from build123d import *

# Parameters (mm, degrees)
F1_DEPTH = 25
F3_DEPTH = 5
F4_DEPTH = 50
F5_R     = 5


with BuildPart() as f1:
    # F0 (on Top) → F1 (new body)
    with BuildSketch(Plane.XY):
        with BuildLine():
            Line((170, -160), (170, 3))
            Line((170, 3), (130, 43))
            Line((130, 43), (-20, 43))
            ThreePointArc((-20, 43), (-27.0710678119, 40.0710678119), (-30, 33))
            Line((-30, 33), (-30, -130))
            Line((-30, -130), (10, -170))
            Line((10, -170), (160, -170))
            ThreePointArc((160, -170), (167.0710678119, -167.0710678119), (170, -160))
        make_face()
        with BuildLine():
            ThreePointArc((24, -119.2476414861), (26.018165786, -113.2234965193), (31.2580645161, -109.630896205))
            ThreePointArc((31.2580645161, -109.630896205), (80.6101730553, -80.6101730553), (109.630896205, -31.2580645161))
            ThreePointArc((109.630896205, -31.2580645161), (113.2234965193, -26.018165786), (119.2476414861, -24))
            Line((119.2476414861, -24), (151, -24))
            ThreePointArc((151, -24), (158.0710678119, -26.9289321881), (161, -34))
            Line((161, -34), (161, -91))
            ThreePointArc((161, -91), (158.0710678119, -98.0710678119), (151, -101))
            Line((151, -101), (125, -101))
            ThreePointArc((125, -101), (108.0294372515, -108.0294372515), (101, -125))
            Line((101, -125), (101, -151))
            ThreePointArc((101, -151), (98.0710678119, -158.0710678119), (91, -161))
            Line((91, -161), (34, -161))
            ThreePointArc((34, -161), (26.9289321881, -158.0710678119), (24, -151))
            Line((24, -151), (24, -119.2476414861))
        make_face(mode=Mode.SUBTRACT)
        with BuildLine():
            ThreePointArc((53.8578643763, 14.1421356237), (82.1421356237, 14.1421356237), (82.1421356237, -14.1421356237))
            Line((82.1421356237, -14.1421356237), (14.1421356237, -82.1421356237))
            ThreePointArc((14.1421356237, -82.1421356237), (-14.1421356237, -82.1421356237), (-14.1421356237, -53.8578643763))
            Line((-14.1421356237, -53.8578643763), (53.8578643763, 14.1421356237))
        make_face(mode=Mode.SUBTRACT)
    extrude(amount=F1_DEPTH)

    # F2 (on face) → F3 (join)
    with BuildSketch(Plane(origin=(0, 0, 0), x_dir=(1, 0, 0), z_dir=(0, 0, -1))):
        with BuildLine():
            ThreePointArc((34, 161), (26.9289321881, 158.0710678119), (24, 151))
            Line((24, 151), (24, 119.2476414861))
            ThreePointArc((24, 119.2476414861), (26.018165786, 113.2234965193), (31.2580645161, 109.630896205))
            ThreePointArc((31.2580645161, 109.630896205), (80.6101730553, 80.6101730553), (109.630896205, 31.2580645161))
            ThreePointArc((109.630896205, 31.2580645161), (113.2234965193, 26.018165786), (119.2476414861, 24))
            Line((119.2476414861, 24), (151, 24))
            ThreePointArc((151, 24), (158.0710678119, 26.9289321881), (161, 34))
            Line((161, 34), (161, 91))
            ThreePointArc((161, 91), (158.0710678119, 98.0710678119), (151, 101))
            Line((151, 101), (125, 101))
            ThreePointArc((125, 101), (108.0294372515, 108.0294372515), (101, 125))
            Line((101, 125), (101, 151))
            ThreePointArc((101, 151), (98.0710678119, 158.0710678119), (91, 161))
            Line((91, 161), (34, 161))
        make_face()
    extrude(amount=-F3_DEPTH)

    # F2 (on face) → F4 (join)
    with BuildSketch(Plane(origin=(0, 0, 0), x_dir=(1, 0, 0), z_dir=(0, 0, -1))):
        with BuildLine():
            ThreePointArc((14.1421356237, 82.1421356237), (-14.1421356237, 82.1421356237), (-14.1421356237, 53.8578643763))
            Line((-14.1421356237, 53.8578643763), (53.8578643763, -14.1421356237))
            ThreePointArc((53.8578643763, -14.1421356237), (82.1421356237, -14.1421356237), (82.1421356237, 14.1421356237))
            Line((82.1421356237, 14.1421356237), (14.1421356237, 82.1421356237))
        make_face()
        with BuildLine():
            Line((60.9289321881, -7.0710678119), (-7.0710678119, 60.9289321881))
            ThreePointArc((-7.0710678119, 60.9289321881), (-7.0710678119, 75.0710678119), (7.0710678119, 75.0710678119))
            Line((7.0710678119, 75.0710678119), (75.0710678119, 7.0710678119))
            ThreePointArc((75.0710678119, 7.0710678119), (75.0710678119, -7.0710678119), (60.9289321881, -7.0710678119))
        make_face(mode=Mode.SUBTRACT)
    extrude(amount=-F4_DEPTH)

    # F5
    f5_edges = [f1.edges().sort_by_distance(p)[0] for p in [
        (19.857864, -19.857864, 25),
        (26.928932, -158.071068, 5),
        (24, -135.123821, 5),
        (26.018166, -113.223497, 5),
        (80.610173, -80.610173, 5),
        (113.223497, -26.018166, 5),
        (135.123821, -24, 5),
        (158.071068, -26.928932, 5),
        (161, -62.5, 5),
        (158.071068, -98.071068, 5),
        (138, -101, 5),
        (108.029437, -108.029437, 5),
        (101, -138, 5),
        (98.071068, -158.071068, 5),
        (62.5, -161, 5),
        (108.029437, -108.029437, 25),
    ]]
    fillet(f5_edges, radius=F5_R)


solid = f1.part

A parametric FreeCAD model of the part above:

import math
import FreeCAD as App
import Part
import Sketcher
from FreeCAD import Vector
Q = App.Units.Quantity


def edges_at(feature, points):
    """Names of the edges that pass closest to the given points."""
    edges = feature.Shape.Edges
    near = lambda p: min(range(len(edges)), key=lambda i: edges[i].distToShape(Part.Vertex(*p))[0])
    return sorted({f"Edge{near(p) + 1}" for p in points})

doc = App.newDocument("Part")
params = doc.addObject("Spreadsheet::Sheet", "Params")
for row, (alias, value) in enumerate([
    ("sketch1_radius", "10 mm"),
    ("sketch1_radius2", "114 mm"),
    ("sketch1_radius3", "24 mm"),
    ("sketch1_radius4", "20 mm"),
    ("sketch1_width", "150 mm"),
    ("pad1_length", "25 mm"),
    ("sketch2_radius", "10 mm"),
    ("sketch2_radius2", "114 mm"),
    ("sketch2_radius3", "24 mm"),
    ("sketch2_width", "26 mm"),
    ("sketch2_width2", "57 mm"),
    ("pad2_length", "5 mm"),
    ("sketch3_radius", "20 mm"),
    ("sketch3_radius2", "10 mm"),
    ("pad3_length", "50 mm"),
    ("fillet_radius", "5 mm"),
], start=1):
    params.set(f"A{row}", alias)
    params.set(f"B{row}", "=" + value)
    params.setAlias(f"B{row}", alias)

body = doc.addObject("PartDesign::Body", "Body")

sketch1 = doc.addObject("Sketcher::SketchObject", "Sketch")
body.addObject(sketch1)
sketch1.AttachmentSupport = (doc.XY_Plane, [""])
sketch1.MapMode = "FlatFace"
sketch1.addGeometry(Part.LineSegment(Vector(170, -160, 0), Vector(170, 3, 0)), False)
sketch1.addGeometry(Part.LineSegment(Vector(170, 3, 0), Vector(130, 43, 0)), False)
sketch1.addGeometry(Part.LineSegment(Vector(130, 43, 0), Vector(-20, 43, 0)), False)
sketch1.addGeometry(Part.ArcOfCircle(Part.Circle(Vector(-20, 33, 0), Vector(0, 0, 1), 10), math.radians(90), math.radians(180)), False)
sketch1.addGeometry(Part.LineSegment(Vector(-30, 33, 0), Vector(-30, -130, 0)), False)
sketch1.addGeometry(Part.LineSegment(Vector(-30, -130, 0), Vector(10, -170, 0)), False)
sketch1.addGeometry(Part.LineSegment(Vector(10, -170, 0), Vector(160, -170, 0)), False)
sketch1.addGeometry(Part.ArcOfCircle(Part.Circle(Vector(160, -160, 0), Vector(0, 0, 1), 10), math.radians(-90), math.radians(0)), False)
sketch1.addGeometry(Part.LineSegment(Vector(24, -151, 0), Vector(24, -119, 0)), False)
sketch1.addGeometry(Part.ArcOfCircle(Part.Circle(Vector(34, -119, 0), Vector(0, 0, 1), 10), math.radians(106), math.radians(180)), False)
sketch1.addGeometry(Part.ArcOfCircle(Part.Circle(Vector(0, 0, 0), Vector(0, 0, 1), 114), math.radians(-74), math.radians(-16)), False)
sketch1.addGeometry(Part.ArcOfCircle(Part.Circle(Vector(119, -34, 0), Vector(0, 0, 1), 10), math.radians(90), math.radians(164)), False)
sketch1.addGeometry(Part.LineSegment(Vector(119, -24, 0), Vector(151, -24, 0)), False)
sketch1.addGeometry(Part.ArcOfCircle(Part.Circle(Vector(151, -34, 0), Vector(0, 0, 1), 10), math.radians(0), math.radians(90)), False)
sketch1.addGeometry(Part.LineSegment(Vector(161, -34, 0), Vector(161, -91, 0)), False)
sketch1.addGeometry(Part.ArcOfCircle(Part.Circle(Vector(151, -91, 0), Vector(0, 0, 1), 10), math.radians(-90), math.radians(0)), False)
sketch1.addGeometry(Part.LineSegment(Vector(151, -101, 0), Vector(125, -101, 0)), False)
sketch1.addGeometry(Part.ArcOfCircle(Part.Circle(Vector(125, -125, 0), Vector(0, 0, 1), 24), math.radians(90), math.radians(180)), False)
sketch1.addGeometry(Part.LineSegment(Vector(101, -125, 0), Vector(101, -151, 0)), False)
sketch1.addGeometry(Part.ArcOfCircle(Part.Circle(Vector(91, -151, 0), Vector(0, 0, 1), 10), math.radians(-90), math.radians(0)), False)
sketch1.addGeometry(Part.LineSegment(Vector(91, -161, 0), Vector(34, -161, 0)), False)
sketch1.addGeometry(Part.ArcOfCircle(Part.Circle(Vector(34, -151, 0), Vector(0, 0, 1), 10), math.radians(180), math.radians(270)), False)
sketch1.addGeometry(Part.LineSegment(Vector(-14, -54, 0), Vector(54, 14, 0)), False)
sketch1.addGeometry(Part.ArcOfCircle(Part.Circle(Vector(68, 0, 0), Vector(0, 0, 1), 20), math.radians(-45), math.radians(135)), False)
sketch1.addGeometry(Part.LineSegment(Vector(82, -14, 0), Vector(14, -82, 0)), False)
sketch1.addGeometry(Part.ArcOfCircle(Part.Circle(Vector(0, -68, 0), Vector(0, 0, 1), 20), math.radians(135), math.radians(315)), False)
sketch1.addConstraint(Sketcher.Constraint("Coincident", 0, 2, 1, 1))
sketch1.addConstraint(Sketcher.Constraint("Coincident", 1, 2, 2, 1))
sketch1.addConstraint(Sketcher.Constraint("Tangent", 2, 2, 3, 1))
sketch1.addConstraint(Sketcher.Constraint("Tangent", 3, 2, 4, 1))
sketch1.addConstraint(Sketcher.Constraint("Coincident", 4, 2, 5, 1))
sketch1.addConstraint(Sketcher.Constraint("Coincident", 5, 2, 6, 1))
sketch1.addConstraint(Sketcher.Constraint("Tangent", 6, 2, 7, 1))
sketch1.addConstraint(Sketcher.Constraint("Tangent", 7, 2, 0, 1))
sketch1.addConstraint(Sketcher.Constraint("Tangent", 8, 2, 9, 2))
sketch1.addConstraint(Sketcher.Constraint("Tangent", 9, 1, 10, 1))
sketch1.addConstraint(Sketcher.Constraint("Tangent", 10, 2, 11, 2))
sketch1.addConstraint(Sketcher.Constraint("Tangent", 11, 1, 12, 1))
sketch1.addConstraint(Sketcher.Constraint("Tangent", 12, 2, 13, 2))
sketch1.addConstraint(Sketcher.Constraint("Tangent", 13, 1, 14, 1))
sketch1.addConstraint(Sketcher.Constraint("Tangent", 14, 2, 15, 2))
sketch1.addConstraint(Sketcher.Constraint("Tangent", 15, 1, 16, 1))
sketch1.addConstraint(Sketcher.Constraint("Tangent", 16, 2, 17, 1))
sketch1.addConstraint(Sketcher.Constraint("Tangent", 17, 2, 18, 1))
sketch1.addConstraint(Sketcher.Constraint("Tangent", 18, 2, 19, 2))
sketch1.addConstraint(Sketcher.Constraint("Tangent", 19, 1, 20, 1))
sketch1.addConstraint(Sketcher.Constraint("Tangent", 20, 2, 21, 2))
sketch1.addConstraint(Sketcher.Constraint("Tangent", 21, 1, 8, 1))
sketch1.addConstraint(Sketcher.Constraint("Tangent", 22, 2, 23, 2))
sketch1.addConstraint(Sketcher.Constraint("Tangent", 23, 1, 24, 1))
sketch1.addConstraint(Sketcher.Constraint("Tangent", 24, 2, 25, 2))
sketch1.addConstraint(Sketcher.Constraint("Tangent", 25, 1, 22, 1))
sketch1.addConstraint(Sketcher.Constraint("Vertical", 0))
sketch1.addConstraint(Sketcher.Constraint("Horizontal", 2))
sketch1.addConstraint(Sketcher.Constraint("Vertical", 4))
sketch1.addConstraint(Sketcher.Constraint("Horizontal", 6))
sketch1.addConstraint(Sketcher.Constraint("Vertical", 8))
sketch1.addConstraint(Sketcher.Constraint("Horizontal", 12))
sketch1.addConstraint(Sketcher.Constraint("Vertical", 14))
sketch1.addConstraint(Sketcher.Constraint("Horizontal", 16))
sketch1.addConstraint(Sketcher.Constraint("Vertical", 18))
sketch1.addConstraint(Sketcher.Constraint("Horizontal", 20))
sketch1.addConstraint(Sketcher.Constraint("Coincident", 10, 3, -1, 1))
sketch1.addConstraint(Sketcher.Constraint("Equal", 3, 7))
sketch1.addConstraint(Sketcher.Constraint("Equal", 7, 9))
sketch1.addConstraint(Sketcher.Constraint("Equal", 9, 11))
sketch1.addConstraint(Sketcher.Constraint("Equal", 11, 13))
sketch1.addConstraint(Sketcher.Constraint("Equal", 13, 15))
sketch1.addConstraint(Sketcher.Constraint("Equal", 15, 19))
sketch1.addConstraint(Sketcher.Constraint("Equal", 19, 21))
sketch1.addConstraint(Sketcher.Constraint("Equal", 23, 25))
sketch1.addConstraint(Sketcher.Constraint("PointOnObject", 23, 3, -1))
sketch1.addConstraint(Sketcher.Constraint("PointOnObject", 25, 3, -2))
sketch1.addConstraint(Sketcher.Constraint("Parallel", 1, 5))
sketch1.addConstraint(Sketcher.Constraint("Perpendicular", 5, 22))
sketch1.addConstraint(Sketcher.Constraint("Equal", 2, 6))
sketch1.addConstraint(Sketcher.Constraint("Equal", 12, 8))
sketch1.addConstraint(Sketcher.Constraint("Equal", 20, 14))
sketch1.addConstraint(Sketcher.Constraint("Equal", 16, 18))
sketch1.addConstraint(Sketcher.Constraint("Radius", 3, 10.0))
sketch1.addConstraint(Sketcher.Constraint("Radius", 10, 114.0))
sketch1.addConstraint(Sketcher.Constraint("Radius", 17, 24.0))
sketch1.addConstraint(Sketcher.Constraint("Radius", 23, 20.0))
sketch1.addConstraint(Sketcher.Constraint("DistanceX", 2, 2, 2, 1, 150.0))
sketch1.addConstraint(Sketcher.Constraint("DistanceX", 16, 2, 16, 1, 26.0))
sketch1.addConstraint(Sketcher.Constraint("DistanceX", 20, 2, 20, 1, 57.0))
sketch1.addConstraint(Sketcher.Constraint("DistanceY", 0, 1, 0, 2, 163.0))
sketch1.addConstraint(Sketcher.Constraint("Angle", 1, Q("135 deg")))
sketch1.addConstraint(Sketcher.Constraint("DistanceX", 3, 3, -1, 1, 20.0))
sketch1.addConstraint(Sketcher.Constraint("DistanceY", -1, 1, 3, 3, 33.0))
sketch1.addConstraint(Sketcher.Constraint("DistanceX", -1, 1, 7, 3, 160.0))
sketch1.addConstraint(Sketcher.Constraint("DistanceX", -1, 1, 9, 3, 34.0))
sketch1.addConstraint(Sketcher.Constraint("DistanceX", -1, 1, 23, 3, 68.0))
sketch1.setExpression("Constraints[53]", "Params.sketch1_radius")
sketch1.setExpression("Constraints[54]", "Params.sketch1_radius2")
sketch1.setExpression("Constraints[55]", "Params.sketch1_radius3")
sketch1.setExpression("Constraints[56]", "Params.sketch1_radius4")
sketch1.setExpression("Constraints[57]", "Params.sketch1_width")
pad1 = doc.addObject("PartDesign::Pad", "Pad")
body.addObject(pad1)
pad1.Profile = sketch1
pad1.setExpression("Length", "Params.pad1_length")

sketch2 = doc.addObject("Sketcher::SketchObject", "Sketch001")
body.addObject(sketch2)
sketch2.AttachmentSupport = (doc.XY_Plane, [""])
sketch2.MapMode = "FlatFace"
sketch2.addGeometry(Part.ArcOfCircle(Part.Circle(Vector(34, -151, 0), Vector(0, 0, 1), 10), math.radians(180), math.radians(270)), False)
sketch2.addGeometry(Part.LineSegment(Vector(24, -151, 0), Vector(24, -119, 0)), False)
sketch2.addGeometry(Part.ArcOfCircle(Part.Circle(Vector(34, -119, 0), Vector(0, 0, 1), 10), math.radians(106), math.radians(180)), False)
sketch2.addGeometry(Part.ArcOfCircle(Part.Circle(Vector(0, 0, 0), Vector(0, 0, 1), 114), math.radians(-74), math.radians(-16)), False)
sketch2.addGeometry(Part.ArcOfCircle(Part.Circle(Vector(119, -34, 0), Vector(0, 0, 1), 10), math.radians(90), math.radians(164)), False)
sketch2.addGeometry(Part.LineSegment(Vector(119, -24, 0), Vector(151, -24, 0)), False)
sketch2.addGeometry(Part.ArcOfCircle(Part.Circle(Vector(151, -34, 0), Vector(0, 0, 1), 10), math.radians(0), math.radians(90)), False)
sketch2.addGeometry(Part.LineSegment(Vector(161, -34, 0), Vector(161, -91, 0)), False)
sketch2.addGeometry(Part.ArcOfCircle(Part.Circle(Vector(151, -91, 0), Vector(0, 0, 1), 10), math.radians(-90), math.radians(0)), False)
sketch2.addGeometry(Part.LineSegment(Vector(151, -101, 0), Vector(125, -101, 0)), False)
sketch2.addGeometry(Part.ArcOfCircle(Part.Circle(Vector(125, -125, 0), Vector(0, 0, 1), 24), math.radians(90), math.radians(180)), False)
sketch2.addGeometry(Part.LineSegment(Vector(101, -125, 0), Vector(101, -151, 0)), False)
sketch2.addGeometry(Part.ArcOfCircle(Part.Circle(Vector(91, -151, 0), Vector(0, 0, 1), 10), math.radians(-90), math.radians(0)), False)
sketch2.addGeometry(Part.LineSegment(Vector(91, -161, 0), Vector(34, -161, 0)), False)
sketch2.addConstraint(Sketcher.Constraint("Tangent", 0, 1, 1, 1))
sketch2.addConstraint(Sketcher.Constraint("Tangent", 1, 2, 2, 2))
sketch2.addConstraint(Sketcher.Constraint("Tangent", 2, 1, 3, 1))
sketch2.addConstraint(Sketcher.Constraint("Tangent", 3, 2, 4, 2))
sketch2.addConstraint(Sketcher.Constraint("Tangent", 4, 1, 5, 1))
sketch2.addConstraint(Sketcher.Constraint("Tangent", 5, 2, 6, 2))
sketch2.addConstraint(Sketcher.Constraint("Tangent", 6, 1, 7, 1))
sketch2.addConstraint(Sketcher.Constraint("Tangent", 7, 2, 8, 2))
sketch2.addConstraint(Sketcher.Constraint("Tangent", 8, 1, 9, 1))
sketch2.addConstraint(Sketcher.Constraint("Tangent", 9, 2, 10, 1))
sketch2.addConstraint(Sketcher.Constraint("Tangent", 10, 2, 11, 1))
sketch2.addConstraint(Sketcher.Constraint("Tangent", 11, 2, 12, 2))
sketch2.addConstraint(Sketcher.Constraint("Tangent", 12, 1, 13, 1))
sketch2.addConstraint(Sketcher.Constraint("Tangent", 13, 2, 0, 2))
sketch2.addConstraint(Sketcher.Constraint("Vertical", 1))
sketch2.addConstraint(Sketcher.Constraint("Horizontal", 5))
sketch2.addConstraint(Sketcher.Constraint("Vertical", 7))
sketch2.addConstraint(Sketcher.Constraint("Horizontal", 9))
sketch2.addConstraint(Sketcher.Constraint("Vertical", 11))
sketch2.addConstraint(Sketcher.Constraint("Horizontal", 13))
sketch2.addConstraint(Sketcher.Constraint("Coincident", 3, 3, -1, 1))
sketch2.addConstraint(Sketcher.Constraint("Equal", 0, 2))
sketch2.addConstraint(Sketcher.Constraint("Equal", 2, 4))
sketch2.addConstraint(Sketcher.Constraint("Equal", 4, 6))
sketch2.addConstraint(Sketcher.Constraint("Equal", 6, 8))
sketch2.addConstraint(Sketcher.Constraint("Equal", 8, 12))
sketch2.addConstraint(Sketcher.Constraint("Equal", 5, 1))
sketch2.addConstraint(Sketcher.Constraint("Equal", 13, 7))
sketch2.addConstraint(Sketcher.Constraint("Equal", 9, 11))
sketch2.addConstraint(Sketcher.Constraint("Radius", 0, 10.0))
sketch2.addConstraint(Sketcher.Constraint("Radius", 3, 114.0))
sketch2.addConstraint(Sketcher.Constraint("Radius", 10, 24.0))
sketch2.addConstraint(Sketcher.Constraint("DistanceX", 9, 2, 9, 1, 26.0))
sketch2.addConstraint(Sketcher.Constraint("DistanceX", 13, 2, 13, 1, 57.0))
sketch2.addConstraint(Sketcher.Constraint("DistanceX", -1, 1, 0, 3, 34.0))
sketch2.setExpression("Constraints[29]", "Params.sketch2_radius")
sketch2.setExpression("Constraints[30]", "Params.sketch2_radius2")
sketch2.setExpression("Constraints[31]", "Params.sketch2_radius3")
sketch2.setExpression("Constraints[32]", "Params.sketch2_width")
sketch2.setExpression("Constraints[33]", "Params.sketch2_width2")
pad2 = doc.addObject("PartDesign::Pad", "Pad001")
body.addObject(pad2)
pad2.Profile = sketch2
pad2.setExpression("Length", "Params.pad2_length")

sketch3 = doc.addObject("Sketcher::SketchObject", "Sketch002")
body.addObject(sketch3)
sketch3.AttachmentSupport = (doc.XY_Plane, [""])
sketch3.MapMode = "FlatFace"
sketch3.addGeometry(Part.ArcOfCircle(Part.Circle(Vector(0, -68, 0), Vector(0, 0, 1), 20), math.radians(135), math.radians(315)), False)
sketch3.addGeometry(Part.LineSegment(Vector(-14, -54, 0), Vector(54, 14, 0)), False)
sketch3.addGeometry(Part.ArcOfCircle(Part.Circle(Vector(68, 0, 0), Vector(0, 0, 1), 20), math.radians(-45), math.radians(135)), False)
sketch3.addGeometry(Part.LineSegment(Vector(82, -14, 0), Vector(14, -82, 0)), False)
sketch3.addGeometry(Part.ArcOfCircle(Part.Circle(Vector(68, 0, 0), Vector(0, 0, 1), 10), math.radians(-45), math.radians(135)), False)
sketch3.addGeometry(Part.LineSegment(Vector(61, 7, 0), Vector(-7, -61, 0)), False)
sketch3.addGeometry(Part.ArcOfCircle(Part.Circle(Vector(0, -68, 0), Vector(0, 0, 1), 10), math.radians(135), math.radians(315)), False)
sketch3.addGeometry(Part.LineSegment(Vector(7, -75, 0), Vector(75, -7, 0)), False)
sketch3.addConstraint(Sketcher.Constraint("Tangent", 0, 1, 1, 1))
sketch3.addConstraint(Sketcher.Constraint("Tangent", 1, 2, 2, 2))
sketch3.addConstraint(Sketcher.Constraint("Tangent", 2, 1, 3, 1))
sketch3.addConstraint(Sketcher.Constraint("Tangent", 3, 2, 0, 2))
sketch3.addConstraint(Sketcher.Constraint("Tangent", 4, 2, 5, 1))
sketch3.addConstraint(Sketcher.Constraint("Tangent", 5, 2, 6, 1))
sketch3.addConstraint(Sketcher.Constraint("Tangent", 6, 2, 7, 1))
sketch3.addConstraint(Sketcher.Constraint("Tangent", 7, 2, 4, 1))
sketch3.addConstraint(Sketcher.Constraint("Coincident", 4, 3, 2, 3))
sketch3.addConstraint(Sketcher.Constraint("Coincident", 6, 3, 0, 3))
sketch3.addConstraint(Sketcher.Constraint("Equal", 0, 2))
sketch3.addConstraint(Sketcher.Constraint("Equal", 4, 6))
sketch3.addConstraint(Sketcher.Constraint("PointOnObject", 0, 3, -2))
sketch3.addConstraint(Sketcher.Constraint("PointOnObject", 2, 3, -1))
sketch3.addConstraint(Sketcher.Constraint("Radius", 0, 20.0))
sketch3.addConstraint(Sketcher.Constraint("Radius", 4, 10.0))
sketch3.addConstraint(Sketcher.Constraint("Angle", 1, Q("45 deg")))
sketch3.addConstraint(Sketcher.Constraint("DistanceY", 0, 3, -1, 1, 68.0))
sketch3.setExpression("Constraints[14]", "Params.sketch3_radius")
sketch3.setExpression("Constraints[15]", "Params.sketch3_radius2")
pad3 = doc.addObject("PartDesign::Pad", "Pad002")
body.addObject(pad3)
pad3.Profile = sketch3
pad3.setExpression("Length", "Params.pad3_length")
doc.recompute()

fillet = doc.addObject("PartDesign::Fillet", "Fillet")
body.addObject(fillet)
fillet.Base = (pad3, edges_at(pad3, [
    (19.858, -19.858, 25),
    (26.929, -158.071, 5),
    (24, -135.124, 5),
    (26.018, -113.223, 5),
    (80.61, -80.61, 5),
    (113.223, -26.018, 5),
    (135.124, -24, 5),
    (158.071, -26.929, 5),
    (161, -62.5, 5),
    (158.071, -98.071, 5),
    (138, -101, 5),
    (108.029, -108.029, 5),
    (101, -138, 5),
    (98.071, -158.071, 5),
    (62.5, -161, 5),
    (108.029, -108.029, 25),
]))
fillet.setExpression("Radius", "Params.fillet_radius")

doc.recompute()
